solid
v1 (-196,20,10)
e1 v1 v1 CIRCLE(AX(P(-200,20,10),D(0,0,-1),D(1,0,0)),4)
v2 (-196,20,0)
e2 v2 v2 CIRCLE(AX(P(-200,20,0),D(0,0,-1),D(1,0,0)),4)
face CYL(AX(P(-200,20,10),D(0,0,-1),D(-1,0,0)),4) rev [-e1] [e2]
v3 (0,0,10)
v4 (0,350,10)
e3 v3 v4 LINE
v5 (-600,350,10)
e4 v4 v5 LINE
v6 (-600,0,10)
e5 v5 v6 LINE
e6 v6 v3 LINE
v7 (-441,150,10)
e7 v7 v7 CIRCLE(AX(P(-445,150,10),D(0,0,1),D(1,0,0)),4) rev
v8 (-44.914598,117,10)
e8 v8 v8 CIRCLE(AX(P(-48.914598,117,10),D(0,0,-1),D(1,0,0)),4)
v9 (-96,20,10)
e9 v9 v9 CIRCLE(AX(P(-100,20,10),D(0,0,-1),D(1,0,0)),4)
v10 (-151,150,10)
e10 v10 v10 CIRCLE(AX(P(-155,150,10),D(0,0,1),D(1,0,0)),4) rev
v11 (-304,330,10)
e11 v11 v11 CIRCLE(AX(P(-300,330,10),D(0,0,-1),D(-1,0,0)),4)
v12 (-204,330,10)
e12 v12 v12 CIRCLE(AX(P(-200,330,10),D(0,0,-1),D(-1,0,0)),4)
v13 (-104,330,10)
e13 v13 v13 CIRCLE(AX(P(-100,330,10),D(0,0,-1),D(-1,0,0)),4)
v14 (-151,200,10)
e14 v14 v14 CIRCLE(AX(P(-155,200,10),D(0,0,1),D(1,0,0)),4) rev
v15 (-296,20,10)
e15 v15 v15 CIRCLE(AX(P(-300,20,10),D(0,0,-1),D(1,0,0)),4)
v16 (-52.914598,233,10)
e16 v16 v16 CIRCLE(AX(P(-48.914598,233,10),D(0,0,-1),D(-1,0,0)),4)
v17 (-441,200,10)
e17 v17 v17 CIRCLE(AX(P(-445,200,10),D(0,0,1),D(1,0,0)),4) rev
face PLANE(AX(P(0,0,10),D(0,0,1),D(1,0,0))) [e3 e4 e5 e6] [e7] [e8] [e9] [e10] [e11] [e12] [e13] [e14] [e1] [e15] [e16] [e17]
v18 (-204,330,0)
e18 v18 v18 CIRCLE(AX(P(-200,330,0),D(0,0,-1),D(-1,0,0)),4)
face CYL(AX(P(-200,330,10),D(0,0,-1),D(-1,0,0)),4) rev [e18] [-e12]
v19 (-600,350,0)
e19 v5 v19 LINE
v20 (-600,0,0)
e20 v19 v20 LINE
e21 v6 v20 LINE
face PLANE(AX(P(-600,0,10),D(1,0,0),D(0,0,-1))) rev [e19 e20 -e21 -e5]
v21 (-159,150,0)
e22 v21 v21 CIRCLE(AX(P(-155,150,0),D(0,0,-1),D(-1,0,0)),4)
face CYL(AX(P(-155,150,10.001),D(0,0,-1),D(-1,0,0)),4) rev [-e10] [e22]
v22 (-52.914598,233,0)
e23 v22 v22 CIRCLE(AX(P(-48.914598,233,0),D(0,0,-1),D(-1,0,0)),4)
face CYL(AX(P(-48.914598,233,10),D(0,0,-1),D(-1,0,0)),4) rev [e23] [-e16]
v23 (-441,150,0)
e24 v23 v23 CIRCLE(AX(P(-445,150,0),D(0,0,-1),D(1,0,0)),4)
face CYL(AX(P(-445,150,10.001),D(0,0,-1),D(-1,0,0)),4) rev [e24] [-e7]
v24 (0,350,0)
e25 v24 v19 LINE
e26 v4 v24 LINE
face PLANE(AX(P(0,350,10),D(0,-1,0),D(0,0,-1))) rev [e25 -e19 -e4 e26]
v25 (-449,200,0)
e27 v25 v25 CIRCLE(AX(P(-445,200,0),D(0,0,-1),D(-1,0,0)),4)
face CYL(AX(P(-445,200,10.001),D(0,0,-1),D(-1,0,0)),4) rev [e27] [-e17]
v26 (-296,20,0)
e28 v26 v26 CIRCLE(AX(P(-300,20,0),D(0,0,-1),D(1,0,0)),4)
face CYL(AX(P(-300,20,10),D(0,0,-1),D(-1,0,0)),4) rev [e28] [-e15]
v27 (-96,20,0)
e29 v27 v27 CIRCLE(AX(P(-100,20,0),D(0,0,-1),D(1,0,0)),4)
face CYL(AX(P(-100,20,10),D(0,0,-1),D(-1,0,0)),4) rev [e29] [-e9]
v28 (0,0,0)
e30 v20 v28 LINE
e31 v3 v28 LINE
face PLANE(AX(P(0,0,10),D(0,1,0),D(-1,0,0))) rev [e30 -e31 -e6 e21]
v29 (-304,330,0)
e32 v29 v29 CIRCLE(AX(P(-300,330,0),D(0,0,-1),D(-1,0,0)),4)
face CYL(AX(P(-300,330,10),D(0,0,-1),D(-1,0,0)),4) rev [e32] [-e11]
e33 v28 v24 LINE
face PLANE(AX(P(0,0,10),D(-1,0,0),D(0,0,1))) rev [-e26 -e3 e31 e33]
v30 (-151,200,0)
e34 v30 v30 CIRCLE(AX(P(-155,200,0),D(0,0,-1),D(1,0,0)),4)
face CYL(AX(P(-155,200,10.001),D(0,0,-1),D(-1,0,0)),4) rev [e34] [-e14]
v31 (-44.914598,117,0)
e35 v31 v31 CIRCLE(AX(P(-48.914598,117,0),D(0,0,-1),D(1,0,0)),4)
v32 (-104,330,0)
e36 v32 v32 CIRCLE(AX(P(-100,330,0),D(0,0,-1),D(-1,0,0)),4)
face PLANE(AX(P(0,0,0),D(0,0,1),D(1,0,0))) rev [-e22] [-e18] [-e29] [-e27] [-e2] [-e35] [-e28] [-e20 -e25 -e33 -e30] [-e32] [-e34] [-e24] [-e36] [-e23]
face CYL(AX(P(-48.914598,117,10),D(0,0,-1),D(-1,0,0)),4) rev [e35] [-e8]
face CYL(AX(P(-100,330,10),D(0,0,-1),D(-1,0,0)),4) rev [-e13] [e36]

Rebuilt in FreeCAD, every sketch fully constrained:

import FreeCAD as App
import Part
import Sketcher
from FreeCAD import Vector

doc = App.newDocument("Part")
body = doc.addObject("PartDesign::Body", "Body")

# Sketch on XY plane
sketch1 = doc.addObject("Sketcher::SketchObject", "Sketch")
body.addObject(sketch1)
sketch1.AttachmentSupport = (doc.XY_Plane, [""])
sketch1.MapMode = "FlatFace"
sketch1.addGeometry([
    Part.LineSegment(Vector(-600, 350, 0), Vector(-600, 0, 0)),
    Part.LineSegment(Vector(-600, 0, 0), Vector(0, 0, 0)),
    Part.LineSegment(Vector(0, 0, 0), Vector(0, 350, 0)),
    Part.LineSegment(Vector(0, 350, 0), Vector(-600, 350, 0)),
], False)
sketch1.addConstraint([
    Sketcher.Constraint("Coincident", 0, 2, 1, 1),
    Sketcher.Constraint("Coincident", 1, 2, 2, 1),
    Sketcher.Constraint("Coincident", 2, 2, 3, 1),
    Sketcher.Constraint("Coincident", 3, 2, 0, 1),
    Sketcher.Constraint("Vertical", 0),
    Sketcher.Constraint("Horizontal", 1),
    Sketcher.Constraint("Vertical", 2),
    Sketcher.Constraint("Horizontal", 3),
    Sketcher.Constraint("Coincident", 1, 2, -1, 1),
    Sketcher.Constraint("DistanceX", 1, 1, 1, 2, 600.0),
    Sketcher.Constraint("DistanceY", 0, 2, 0, 1, 350.0),
])
pad1 = doc.addObject("PartDesign::Pad", "Pad")
body.addObject(pad1)
pad1.Profile = sketch1
pad1.Length = 10

# Sketch on XY plane
sketch2 = doc.addObject("Sketcher::SketchObject", "Sketch001")
body.addObject(sketch2)
sketch2.AttachmentSupport = (doc.XY_Plane, [""])
sketch2.MapMode = "FlatFace"
sketch2.addGeometry([
    Part.Circle(Vector(-100, 330, 0), Vector(0, 0, 1), 4),  # 0
    Part.Circle(Vector(-200, 330, 0), Vector(0, 0, 1), 4),  # 1
    Part.Circle(Vector(-300, 330, 0), Vector(0, 0, 1), 4),  # 2
    Part.Circle(Vector(-300, 20, 0), Vector(0, 0, 1), 4),  # 3
    Part.Circle(Vector(-200, 20, 0), Vector(0, 0, 1), 4),  # 4
    Part.Circle(Vector(-100, 20, 0), Vector(0, 0, 1), 4),  # 5
], False)
sketch2.addConstraint([
    Sketcher.Constraint("Equal", 0, 1),
    Sketcher.Constraint("Equal", 1, 2),
    Sketcher.Constraint("Equal", 2, 3),
    Sketcher.Constraint("Equal", 3, 4),
    Sketcher.Constraint("Equal", 4, 5),
    Sketcher.Constraint("Horizontal", 0, 3, 1, 3),
    Sketcher.Constraint("Horizontal", 1, 3, 2, 3),
    Sketcher.Constraint("Horizontal", 3, 3, 4, 3),
    Sketcher.Constraint("Horizontal", 4, 3, 5, 3),
    Sketcher.Constraint("Vertical", 2, 3, 3, 3),
    Sketcher.Constraint("Vertical", 1, 3, 4, 3),
    Sketcher.Constraint("Vertical", 0, 3, 5, 3),
    Sketcher.Constraint("Diameter", 0, 8.0),
    Sketcher.Constraint("DistanceX", 0, 3, -1, 1, 100.0),
    Sketcher.Constraint("DistanceY", -1, 1, 0, 3, 330.0),
    Sketcher.Constraint("DistanceX", 1, 3, -1, 1, 200.0),
    Sketcher.Constraint("DistanceX", 2, 3, -1, 1, 300.0),
    Sketcher.Constraint("DistanceY", -1, 1, 3, 3, 20.0),
])
pocket1 = doc.addObject("PartDesign::Pocket", "Pocket")
body.addObject(pocket1)
pocket1.Profile = sketch2
pocket1.Length = 10
pocket1.Reversed = True

# Sketch on XY plane
sketch3 = doc.addObject("Sketcher::SketchObject", "Sketch002")
body.addObject(sketch3)
sketch3.AttachmentSupport = (doc.XY_Plane, [""])
sketch3.MapMode = "FlatFace"
sketch3.addGeometry([
    Part.Circle(Vector(-48.914598, 233, 0), Vector(0, 0, 1), 4),
    Part.Circle(Vector(-48.914598, 117, 0), Vector(0, 0, 1), 4),
], False)
sketch3.addConstraint([
    Sketcher.Constraint("Equal", 0, 1),
    Sketcher.Constraint("Vertical", 0, 3, 1, 3),
    Sketcher.Constraint("Diameter", 0, 8.0),
    Sketcher.Constraint("DistanceY", -1, 1, 0, 3, 233.0),
    Sketcher.Constraint("DistanceY", -1, 1, 1, 3, 117.0),
    Sketcher.Constraint("DistanceX", 0, 3, -1, 1, 48.914598),
])
pocket2 = doc.addObject("PartDesign::Pocket", "Pocket001")
body.addObject(pocket2)
pocket2.Profile = sketch3
pocket2.Type = "ThroughAll"
pocket2.Reversed = True

# Sketch on XY plane
sketch4 = doc.addObject("Sketcher::SketchObject", "Sketch003")
body.addObject(sketch4)
sketch4.AttachmentSupport = (doc.XY_Plane, [""])
sketch4.MapMode = "FlatFace"
sketch4.addGeometry(Part.Circle(Vector(-155, 150, 0), Vector(0, 0, 1), 4), False)
sketch4.addConstraint([
    Sketcher.Constraint("Diameter", 0, 8.0),
    Sketcher.Constraint("DistanceX", 0, 3, -1, 1, 155.0),
    Sketcher.Constraint("DistanceY", -1, 1, 0, 3, 150.0),
])
pocket3 = doc.addObject("PartDesign::Pocket", "Pocket002")
body.addObject(pocket3)
pocket3.Profile = sketch4
pocket3.Type = "UpToFirst"
pocket3.Reversed = True

# Sketch on XY plane
sketch5 = doc.addObject("Sketcher::SketchObject", "Sketch004")
body.addObject(sketch5)
sketch5.AttachmentSupport = (doc.XY_Plane, [""])
sketch5.MapMode = "FlatFace"
sketch5.addGeometry(Part.Circle(Vector(-155, 200, 0), Vector(0, 0, 1), 4), False)
sketch5.addConstraint([
    Sketcher.Constraint("Diameter", 0, 8.0),
    Sketcher.Constraint("DistanceX", 0, 3, -1, 1, 155.0),
    Sketcher.Constraint("DistanceY", -1, 1, 0, 3, 200.0),
])
pocket4 = doc.addObject("PartDesign::Pocket", "Pocket003")
body.addObject(pocket4)
pocket4.Profile = sketch5
pocket4.Type = "UpToFirst"
pocket4.Reversed = True

# Sketch on XY plane
sketch6 = doc.addObject("Sketcher::SketchObject", "Sketch005")
body.addObject(sketch6)
sketch6.AttachmentSupport = (doc.XY_Plane, [""])
sketch6.MapMode = "FlatFace"
sketch6.addGeometry(Part.Circle(Vector(-445, 150, 0), Vector(0, 0, 1), 4), False)
sketch6.addConstraint([
    Sketcher.Constraint("Diameter", 0, 8.0),
    Sketcher.Constraint("DistanceX", 0, 3, -1, 1, 445.0),
    Sketcher.Constraint("DistanceY", -1, 1, 0, 3, 150.0),
])
pocket5 = doc.addObject("PartDesign::Pocket", "Pocket004")
body.addObject(pocket5)
pocket5.Profile = sketch6
pocket5.Type = "UpToFirst"
pocket5.Reversed = True

# Sketch on XY plane
sketch7 = doc.addObject("Sketcher::SketchObject", "Sketch006")
body.addObject(sketch7)
sketch7.AttachmentSupport = (doc.XY_Plane, [""])
sketch7.MapMode = "FlatFace"
sketch7.addGeometry(Part.Circle(Vector(-445, 200, 0), Vector(0, 0, 1), 4), False)
sketch7.addConstraint([
    Sketcher.Constraint("Diameter", 0, 8.0),
    Sketcher.Constraint("DistanceX", 0, 3, -1, 1, 445.0),
    Sketcher.Constraint("DistanceY", -1, 1, 0, 3, 200.0),
])
pocket6 = doc.addObject("PartDesign::Pocket", "Pocket005")
body.addObject(pocket6)
pocket6.Profile = sketch7
pocket6.Type = "UpToFirst"
pocket6.Reversed = True

doc.recompute()
